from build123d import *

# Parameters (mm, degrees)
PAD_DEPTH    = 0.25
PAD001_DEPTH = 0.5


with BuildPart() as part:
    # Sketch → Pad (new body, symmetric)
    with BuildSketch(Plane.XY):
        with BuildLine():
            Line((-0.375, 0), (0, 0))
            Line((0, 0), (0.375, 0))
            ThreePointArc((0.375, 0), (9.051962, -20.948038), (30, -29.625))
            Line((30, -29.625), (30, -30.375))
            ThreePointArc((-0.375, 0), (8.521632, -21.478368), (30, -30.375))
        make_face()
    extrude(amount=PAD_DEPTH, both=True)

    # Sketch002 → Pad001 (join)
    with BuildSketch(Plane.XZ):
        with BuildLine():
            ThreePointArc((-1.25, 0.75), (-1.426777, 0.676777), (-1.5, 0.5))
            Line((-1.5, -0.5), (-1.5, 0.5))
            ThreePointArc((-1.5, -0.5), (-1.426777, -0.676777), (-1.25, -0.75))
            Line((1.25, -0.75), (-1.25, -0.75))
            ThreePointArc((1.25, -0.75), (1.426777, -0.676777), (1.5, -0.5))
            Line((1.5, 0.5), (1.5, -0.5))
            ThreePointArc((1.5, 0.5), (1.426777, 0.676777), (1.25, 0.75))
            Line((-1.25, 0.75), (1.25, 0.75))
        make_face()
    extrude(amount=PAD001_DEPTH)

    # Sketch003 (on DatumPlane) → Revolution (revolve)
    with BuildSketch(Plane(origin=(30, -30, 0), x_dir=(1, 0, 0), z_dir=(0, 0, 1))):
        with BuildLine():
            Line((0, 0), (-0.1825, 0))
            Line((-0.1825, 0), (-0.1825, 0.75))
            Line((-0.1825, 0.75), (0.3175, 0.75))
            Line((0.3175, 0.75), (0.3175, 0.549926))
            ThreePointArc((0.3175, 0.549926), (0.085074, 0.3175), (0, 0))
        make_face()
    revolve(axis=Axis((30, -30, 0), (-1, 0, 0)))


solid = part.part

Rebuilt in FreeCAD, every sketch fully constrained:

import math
import FreeCAD as App
import Part
import Sketcher

V = App.Vector
Q = App.Units.Quantity

doc = App.newDocument("Part")
body = doc.addObject("PartDesign::Body", "Body")

sketch1 = body.newObject("Sketcher::SketchObject", "Sketch")
sketch1.AttachmentSupport = (doc.getObject("XY_Plane"), [""])
sketch1.MapMode = "FlatFace"
sketch1.addGeometry(Part.LineSegment(V(0.4, 0, 0), V(-0.4, 0, 0)), False)
sketch1.addGeometry(Part.ArcOfCircle(Part.Circle(V(30, 0, 0), V(0, 0, 1), 30.4), math.radians(-180), math.radians(-90)), False)
sketch1.addGeometry(Part.LineSegment(V(30, -30.4, 0), V(30, -29.6, 0)), False)
sketch1.addGeometry(Part.ArcOfCircle(Part.Circle(V(30, 0, 0), V(0, 0, 1), 29.6), math.radians(-180), math.radians(-90)), False)
sketch1.addConstraint(Sketcher.Constraint("Coincident", 0, 2, 1, 1))
sketch1.addConstraint(Sketcher.Constraint("Coincident", 1, 2, 2, 1))
sketch1.addConstraint(Sketcher.Constraint("Coincident", 2, 2, 3, 2))
sketch1.addConstraint(Sketcher.Constraint("Coincident", 3, 1, 0, 1))
sketch1.addConstraint(Sketcher.Constraint("Horizontal", 0))
sketch1.addConstraint(Sketcher.Constraint("Vertical", 2))
sketch1.addConstraint(Sketcher.Constraint("Coincident", 3, 3, 1, 3))
sketch1.addConstraint(Sketcher.Constraint("Symmetric", 0, 2, 3, 1, -1, 1))
sketch1.addConstraint(Sketcher.Constraint("PointOnObject", 1, 3, -1))
sketch1.addConstraint(Sketcher.Constraint("Vertical", 3, 3, 1, 2))
sketch1.addConstraint(Sketcher.Constraint("DistanceX", -1, 1, 1, 3, Q("30.000002 mm")))
sketch1.addConstraint(Sketcher.Constraint("Radius", 1, Q("30.375002 mm")))
pad1 = body.newObject("PartDesign::Pad", "Pad")
pad1.Profile = sketch1
pad1.Length = 0.5
pad1.Midplane = True

sketch2 = body.newObject("Sketcher::SketchObject", "Sketch001")
sketch2.AttachmentSupport = (doc.getObject("XZ_Plane"), [""])
sketch2.MapMode = "FlatFace"
sketch2.addGeometry(Part.ArcOfCircle(Part.Circle(V(-1.25, 0.5, 0), V(0, 0, 1), 0.25), math.radians(90), math.radians(180)), False)
sketch2.addGeometry(Part.LineSegment(V(-1.5, 0.5, 0), V(-1.5, -0.5, 0)), False)
sketch2.addGeometry(Part.ArcOfCircle(Part.Circle(V(-1.25, -0.5, 0), V(0, 0, 1), 0.25), math.radians(180), math.radians(270)), False)
sketch2.addGeometry(Part.LineSegment(V(-1.25, -0.75, 0), V(1.25, -0.75, 0)), False)
sketch2.addGeometry(Part.ArcOfCircle(Part.Circle(V(1.25, -0.5, 0), V(0, 0, 1), 0.25), math.radians(-90), math.radians(0)), False)
sketch2.addGeometry(Part.LineSegment(V(1.5, -0.5, 0), V(1.5, 0.5, 0)), False)
sketch2.addGeometry(Part.ArcOfCircle(Part.Circle(V(1.25, 0.5, 0), V(0, 0, 1), 0.25), math.radians(0), math.radians(90)), False)
sketch2.addGeometry(Part.LineSegment(V(1.25, 0.75, 0), V(-1.25, 0.75, 0)), False)
sketch2.addConstraint(Sketcher.Constraint("Coincident", 0, 2, 1, 1))
sketch2.addConstraint(Sketcher.Constraint("Coincident", 1, 2, 2, 1))
sketch2.addConstraint(Sketcher.Constraint("Coincident", 2, 2, 3, 1))
sketch2.addConstraint(Sketcher.Constraint("Coincident", 3, 2, 4, 1))
sketch2.addConstraint(Sketcher.Constraint("Coincident", 4, 2, 5, 1))
sketch2.addConstraint(Sketcher.Constraint("Coincident", 5, 2, 6, 1))
sketch2.addConstraint(Sketcher.Constraint("Coincident", 6, 2, 7, 1))
sketch2.addConstraint(Sketcher.Constraint("Coincident", 7, 2, 0, 1))
sketch2.addConstraint(Sketcher.Constraint("Vertical", 1))
sketch2.addConstraint(Sketcher.Constraint("Horizontal", 3))
sketch2.addConstraint(Sketcher.Constraint("Vertical", 5))
sketch2.addConstraint(Sketcher.Constraint("Horizontal", 7))
sketch2.addConstraint(Sketcher.Constraint("Equal", 0, 2))
sketch2.addConstraint(Sketcher.Constraint("Equal", 2, 4))
sketch2.addConstraint(Sketcher.Constraint("Equal", 4, 6))
sketch2.addConstraint(Sketcher.Constraint("Symmetric", 0, 3, 4, 3, -1, 1))
sketch2.addConstraint(Sketcher.Constraint("Horizontal", 6, 3, 0, 2))
sketch2.addConstraint(Sketcher.Constraint("Horizontal", 4, 3, 1, 2))
sketch2.addConstraint(Sketcher.Constraint("Horizontal", 1, 2, 4, 2))
sketch2.addConstraint(Sketcher.Constraint("Horizontal", 0, 2, 5, 2))
sketch2.addConstraint(Sketcher.Constraint("Vertical", 0, 3, 2, 2))
sketch2.addConstraint(Sketcher.Constraint("Vertical", 6, 3, 3, 2))
sketch2.addConstraint(Sketcher.Constraint("Vertical", 3, 2, 6, 2))
sketch2.addConstraint(Sketcher.Constraint("Vertical", 2, 2, 7, 2))
sketch2.addConstraint(Sketcher.Constraint("DistanceY", 1, 2, 1, 1, Q("1 mm")))
sketch2.addConstraint(Sketcher.Constraint("Radius", 0, Q("0.249999 mm")))
sketch2.addConstraint(Sketcher.Constraint("DistanceX", 3, 1, 3, 2, Q("2.5 mm")))
pad2 = body.newObject("PartDesign::Pad", "Pad001")
pad2.Profile = sketch2
pad2.Length = 0.5

sketch3 = body.newObject("Sketcher::SketchObject", "Sketch002")
sketch3.AttachmentSupport = (doc.getObject("XY_Plane"), [""])
sketch3.MapMode = "FlatFace"
sketch3.addGeometry(Part.LineSegment(V(29.82, -30, 0), V(30, -30, 0)), False)
sketch3.addGeometry(Part.ArcOfCircle(Part.Circle(V(30.64, -30, 0), V(0, 0, 1), 0.64), math.radians(120), math.radians(180)), False)
sketch3.addGeometry(Part.LineSegment(V(30.32, -29.45, 0), V(30.32, -29.25, 0)), False)
sketch3.addGeometry(Part.LineSegment(V(30.32, -29.25, 0), V(29.82, -29.25, 0)), False)
sketch3.addGeometry(Part.LineSegment(V(29.82, -29.25, 0), V(29.82, -30, 0)), False)
sketch3.addGeometry(Part.LineSegment(V(30.64, -30, 0), V(29.82, -30, 0)), True)
sketch3.addConstraint(Sketcher.Constraint("Coincident", 0, 2, 1, 2))
sketch3.addConstraint(Sketcher.Constraint("Coincident", 1, 1, 2, 1))
sketch3.addConstraint(Sketcher.Constraint("Coincident", 2, 2, 3, 1))
sketch3.addConstraint(Sketcher.Constraint("Coincident", 3, 2, 4, 1))
sketch3.addConstraint(Sketcher.Constraint("Coincident", 4, 2, 0, 1))
sketch3.addConstraint(Sketcher.Constraint("Horizontal", 0))
sketch3.addConstraint(Sketcher.Constraint("Vertical", 2))
sketch3.addConstraint(Sketcher.Constraint("Horizontal", 3))
sketch3.addConstraint(Sketcher.Constraint("Vertical", 4))
sketch3.addConstraint(Sketcher.Constraint("Horizontal", 5))
sketch3.addConstraint(Sketcher.Constraint("Coincident", 5, 1, 1, 3))
sketch3.addConstraint(Sketcher.Constraint("Coincident", 5, 2, 4, 2))
sketch3.addConstraint(Sketcher.Constraint("DistanceX", 3, 2, 3, 1, Q("0.5 mm")))
sketch3.addConstraint(Sketcher.Constraint("DistanceY", 1, 3, -1, 1, Q("30 mm")))
sketch3.addConstraint(Sketcher.Constraint("DistanceX", -1, 1, 0, 2, Q("30 mm")))
sketch3.addConstraint(Sketcher.Constraint("Radius", 1, Q("0.635 mm")))
sketch3.addConstraint(Sketcher.Constraint("DistanceY", 4, 2, 4, 1, Q("0.75 mm")))
sketch3.addConstraint(Sketcher.Constraint("DistanceX", 0, 1, 0, 2, Q("0.1825 mm")))
revolution = body.newObject("PartDesign::Revolution", "Revolution")
revolution.Profile = sketch3
revolution.ReferenceAxis = (sketch3, ["Axis0"])
revolution.Angle = 360

doc.recompute()
